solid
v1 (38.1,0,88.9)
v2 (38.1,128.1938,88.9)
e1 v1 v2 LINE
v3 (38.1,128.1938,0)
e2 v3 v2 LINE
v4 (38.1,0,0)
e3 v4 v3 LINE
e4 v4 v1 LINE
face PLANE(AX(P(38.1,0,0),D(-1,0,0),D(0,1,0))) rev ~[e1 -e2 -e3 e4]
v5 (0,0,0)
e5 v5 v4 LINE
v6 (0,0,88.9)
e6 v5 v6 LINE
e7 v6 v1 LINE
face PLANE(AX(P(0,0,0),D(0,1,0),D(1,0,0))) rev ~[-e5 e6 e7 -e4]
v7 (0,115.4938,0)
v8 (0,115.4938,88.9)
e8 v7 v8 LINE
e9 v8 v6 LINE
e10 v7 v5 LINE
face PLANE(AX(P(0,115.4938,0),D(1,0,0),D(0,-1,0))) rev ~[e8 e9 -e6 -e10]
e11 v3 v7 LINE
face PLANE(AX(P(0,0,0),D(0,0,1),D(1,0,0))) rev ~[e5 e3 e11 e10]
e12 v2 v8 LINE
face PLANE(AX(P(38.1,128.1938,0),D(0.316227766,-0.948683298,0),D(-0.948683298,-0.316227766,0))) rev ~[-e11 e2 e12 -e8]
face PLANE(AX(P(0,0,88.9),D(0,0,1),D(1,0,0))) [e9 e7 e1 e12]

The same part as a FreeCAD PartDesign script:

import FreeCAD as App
import Part
import Sketcher
from FreeCAD import Vector
Q = App.Units.Quantity

doc = App.newDocument("Part")
params = doc.addObject("Spreadsheet::Sheet", "Params")
for row, (alias, value) in enumerate([
    ("sketch1_width", "1.5 in"),
    ("sketch1_height", "4.547 in"),
    ("sketch1_height2", "5.047 in"),
    ("pad1_length", "3.5 in"),
], start=1):
    params.set(f"A{row}", alias)
    params.set(f"B{row}", "=" + value)
    params.setAlias(f"B{row}", alias)

body = doc.addObject("PartDesign::Body", "Body")

# Sketch on XY plane
sketch1 = body.newObject("Sketcher::SketchObject", "Sketch")
sketch1.AttachmentSupport = (doc.getObject("XY_Plane"), [""])
sketch1.MapMode = "FlatFace"
sketch1.addGeometry([
    Part.LineSegment(Vector(0, 115, 0), Vector(0, 0, 0)),
    Part.LineSegment(Vector(0, 0, 0), Vector(38, 0, 0)),
    Part.LineSegment(Vector(38, 0, 0), Vector(38, 128, 0)),
    Part.LineSegment(Vector(38, 128, 0), Vector(0, 115, 0)),
], False)
sketch1.addConstraint([
    Sketcher.Constraint("Coincident", 0, 2, 1, 1),
    Sketcher.Constraint("Coincident", 1, 2, 2, 1),
    Sketcher.Constraint("Coincident", 2, 2, 3, 1),
    Sketcher.Constraint("Coincident", 3, 2, 0, 1),
    Sketcher.Constraint("Vertical", 0),
    Sketcher.Constraint("Horizontal", 1),
    Sketcher.Constraint("Vertical", 2),
    Sketcher.Constraint("Coincident", 0, 2, -1, 1),
    Sketcher.Constraint("DistanceX", 1, 1, 1, 2, Q("1.5 in")),
    Sketcher.Constraint("DistanceY", 0, 2, 0, 1, Q("4.547 in")),
    Sketcher.Constraint("DistanceY", 2, 1, 2, 2, Q("5.047 in")),
])
sketch1.setExpression("Constraints[8]", "Params.sketch1_width")
sketch1.setExpression("Constraints[9]", "Params.sketch1_height")
sketch1.setExpression("Constraints[10]", "Params.sketch1_height2")
pad1 = body.newObject("PartDesign::Pad", "Pad")
pad1.Profile = sketch1
pad1.setExpression("Length", "Params.pad1_length")

doc.recompute()
